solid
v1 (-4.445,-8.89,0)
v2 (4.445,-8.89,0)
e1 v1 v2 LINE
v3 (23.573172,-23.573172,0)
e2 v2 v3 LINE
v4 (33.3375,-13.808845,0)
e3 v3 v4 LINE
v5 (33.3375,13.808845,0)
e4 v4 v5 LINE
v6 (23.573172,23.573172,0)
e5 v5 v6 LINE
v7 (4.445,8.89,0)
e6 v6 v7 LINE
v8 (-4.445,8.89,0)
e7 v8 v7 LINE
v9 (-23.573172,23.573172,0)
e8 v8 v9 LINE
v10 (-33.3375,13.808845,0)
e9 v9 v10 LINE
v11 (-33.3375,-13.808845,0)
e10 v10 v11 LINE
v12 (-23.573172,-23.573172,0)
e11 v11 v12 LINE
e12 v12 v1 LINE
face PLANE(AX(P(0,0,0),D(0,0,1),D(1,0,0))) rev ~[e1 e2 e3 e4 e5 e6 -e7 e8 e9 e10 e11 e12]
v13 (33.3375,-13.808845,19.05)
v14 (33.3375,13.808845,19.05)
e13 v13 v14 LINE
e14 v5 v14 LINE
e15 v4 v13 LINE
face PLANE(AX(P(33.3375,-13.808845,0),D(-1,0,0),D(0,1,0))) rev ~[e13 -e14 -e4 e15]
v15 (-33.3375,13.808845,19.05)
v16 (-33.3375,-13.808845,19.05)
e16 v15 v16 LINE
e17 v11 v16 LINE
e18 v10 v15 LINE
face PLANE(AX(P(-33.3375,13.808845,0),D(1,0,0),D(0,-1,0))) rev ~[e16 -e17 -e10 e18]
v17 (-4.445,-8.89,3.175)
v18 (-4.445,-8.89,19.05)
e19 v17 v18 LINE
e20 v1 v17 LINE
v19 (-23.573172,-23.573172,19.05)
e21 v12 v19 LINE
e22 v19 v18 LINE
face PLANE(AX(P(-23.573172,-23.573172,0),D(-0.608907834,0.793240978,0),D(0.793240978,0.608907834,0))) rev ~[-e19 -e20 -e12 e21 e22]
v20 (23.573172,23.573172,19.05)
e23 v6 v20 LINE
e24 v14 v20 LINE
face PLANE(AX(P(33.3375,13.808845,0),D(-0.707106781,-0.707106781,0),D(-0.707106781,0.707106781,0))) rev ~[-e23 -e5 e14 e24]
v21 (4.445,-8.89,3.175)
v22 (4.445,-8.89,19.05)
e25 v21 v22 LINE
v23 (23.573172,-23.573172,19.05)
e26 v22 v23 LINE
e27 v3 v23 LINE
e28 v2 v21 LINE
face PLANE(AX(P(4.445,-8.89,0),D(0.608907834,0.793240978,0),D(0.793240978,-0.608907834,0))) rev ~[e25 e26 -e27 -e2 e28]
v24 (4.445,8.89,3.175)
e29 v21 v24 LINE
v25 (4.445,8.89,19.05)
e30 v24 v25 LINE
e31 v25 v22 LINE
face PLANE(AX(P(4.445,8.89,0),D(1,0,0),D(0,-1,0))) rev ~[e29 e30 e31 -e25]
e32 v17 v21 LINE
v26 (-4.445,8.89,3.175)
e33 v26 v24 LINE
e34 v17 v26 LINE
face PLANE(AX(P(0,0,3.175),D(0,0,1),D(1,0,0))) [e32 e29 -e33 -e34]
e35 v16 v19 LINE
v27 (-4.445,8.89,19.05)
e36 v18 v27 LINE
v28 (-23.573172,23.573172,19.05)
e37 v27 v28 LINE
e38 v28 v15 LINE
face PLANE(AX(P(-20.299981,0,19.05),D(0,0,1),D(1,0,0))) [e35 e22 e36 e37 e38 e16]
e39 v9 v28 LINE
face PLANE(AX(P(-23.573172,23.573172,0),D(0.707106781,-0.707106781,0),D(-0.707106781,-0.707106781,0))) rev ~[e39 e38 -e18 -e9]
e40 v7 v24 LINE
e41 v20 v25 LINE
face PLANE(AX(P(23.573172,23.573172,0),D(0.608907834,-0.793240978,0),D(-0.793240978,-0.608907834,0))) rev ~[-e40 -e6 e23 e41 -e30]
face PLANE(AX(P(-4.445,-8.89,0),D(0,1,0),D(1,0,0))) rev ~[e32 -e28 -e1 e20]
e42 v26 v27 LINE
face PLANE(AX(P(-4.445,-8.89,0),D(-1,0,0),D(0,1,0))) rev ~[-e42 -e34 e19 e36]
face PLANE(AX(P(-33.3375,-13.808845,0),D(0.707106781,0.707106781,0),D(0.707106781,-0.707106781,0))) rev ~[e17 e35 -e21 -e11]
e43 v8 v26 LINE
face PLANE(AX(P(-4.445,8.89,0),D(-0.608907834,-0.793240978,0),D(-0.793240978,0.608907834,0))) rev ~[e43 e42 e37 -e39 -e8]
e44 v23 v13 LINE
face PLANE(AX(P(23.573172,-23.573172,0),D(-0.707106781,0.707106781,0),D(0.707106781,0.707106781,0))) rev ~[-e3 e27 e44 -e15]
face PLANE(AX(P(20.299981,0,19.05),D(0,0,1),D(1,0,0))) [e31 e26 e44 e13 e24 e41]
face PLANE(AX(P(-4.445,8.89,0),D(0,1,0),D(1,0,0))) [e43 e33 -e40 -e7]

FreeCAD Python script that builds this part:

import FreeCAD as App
import Part
import Sketcher

V = App.Vector
Q = App.Units.Quantity

doc = App.newDocument("Part")
params = doc.addObject("Spreadsheet::Sheet", "Params")
for row, (alias, value) in enumerate([
    ("sketch1_height", "0.7 in"),
    ("pad1_length", "0.75 in"),
    ("sketch2_height", "0.7 in"),
    ("pad2_length", "0.75 in"),
    ("sketch3_height", "0.7 in"),
    ("sketch3_width", "0.35 in"),
    ("pad3_length", "0.125 in"),
], start=1):
    params.set(f"A{row}", alias)
    params.set(f"B{row}", "=" + value)
    params.setAlias(f"B{row}", alias)

body = doc.addObject("PartDesign::Body", "Body")

# Sketch on XY plane
sketch1 = body.newObject("Sketcher::SketchObject", "Sketch")
sketch1.AttachmentSupport = (doc.getObject("XY_Plane"), [""])
sketch1.MapMode = "FlatFace"
sketch1.addGeometry([
    Part.LineSegment(V(24, -24, 0), V(33, -14, 0)),  # 0
    Part.LineSegment(V(33, -14, 0), V(33, 14, 0)),  # 1
    Part.LineSegment(V(33, 14, 0), V(24, 24, 0)),  # 2
    Part.LineSegment(V(24, 24, 0), V(4, 9, 0)),  # 3
    Part.LineSegment(V(4, 9, 0), V(4, -9, 0)),  # 4
    Part.LineSegment(V(4, -9, 0), V(24, -24, 0)),  # 5
], False)
sketch1.addConstraint([
    Sketcher.Constraint("Coincident", 0, 2, 1, 1),
    Sketcher.Constraint("Coincident", 1, 2, 2, 1),
    Sketcher.Constraint("Coincident", 2, 2, 3, 1),
    Sketcher.Constraint("Coincident", 3, 2, 4, 1),
    Sketcher.Constraint("Coincident", 4, 2, 5, 1),
    Sketcher.Constraint("Coincident", 5, 2, 0, 1),
    Sketcher.Constraint("Vertical", 1),
    Sketcher.Constraint("Vertical", 4),
    Sketcher.Constraint("Symmetric", 2, 2, 5, 2, -1),
    Sketcher.Constraint("Perpendicular", 0, 2),
    Sketcher.Constraint("Equal", 0, 2),
    Sketcher.Constraint("Equal", 3, 5),
    Sketcher.Constraint("DistanceY", 4, 2, 4, 1, Q("0.7 in")),
    Sketcher.Constraint("DistanceX", -1, 1, 0, 2, Q("1.3125 in")),
    Sketcher.Constraint("DistanceX", -1, 1, 3, 2, Q("0.175 in")),
    Sketcher.Constraint("DistanceY", 1, 1, 1, 2, 27.617689),
    Sketcher.Constraint("Distance", 3, 24.113949),
])
sketch1.setExpression("Constraints[12]", "Params.sketch1_height")
pad1 = body.newObject("PartDesign::Pad", "Pad")
pad1.Profile = sketch1
pad1.setExpression("Length", "Params.pad1_length")
body2 = doc.addObject("PartDesign::Body", "Body001")

# Sketch on XY plane
sketch2 = body2.newObject("Sketcher::SketchObject", "Sketch001")
sketch2.AttachmentSupport = (doc.getObject("XY_Plane001"), [""])
sketch2.MapMode = "FlatFace"
sketch2.addGeometry([
    Part.LineSegment(V(-24, -24, 0), V(-4, -9, 0)),  # 0
    Part.LineSegment(V(-4, -9, 0), V(-4, 9, 0)),  # 1
    Part.LineSegment(V(-4, 9, 0), V(-24, 24, 0)),  # 2
    Part.LineSegment(V(-24, 24, 0), V(-33, 14, 0)),  # 3
    Part.LineSegment(V(-33, 14, 0), V(-33, -14, 0)),  # 4
    Part.LineSegment(V(-33, -14, 0), V(-24, -24, 0)),  # 5
], False)
sketch2.addConstraint([
    Sketcher.Constraint("Coincident", 0, 2, 1, 1),
    Sketcher.Constraint("Coincident", 1, 2, 2, 1),
    Sketcher.Constraint("Coincident", 2, 2, 3, 1),
    Sketcher.Constraint("Coincident", 3, 2, 4, 1),
    Sketcher.Constraint("Coincident", 4, 2, 5, 1),
    Sketcher.Constraint("Coincident", 5, 2, 0, 1),
    Sketcher.Constraint("Vertical", 1),
    Sketcher.Constraint("Vertical", 4),
    Sketcher.Constraint("Symmetric", 2, 2, 5, 2, -1),
    Sketcher.Constraint("Perpendicular", 3, 5),
    Sketcher.Constraint("Equal", 0, 2),
    Sketcher.Constraint("Equal", 3, 5),
    Sketcher.Constraint("DistanceY", 1, 1, 1, 2, Q("0.7 in")),
    Sketcher.Constraint("DistanceX", 0, 2, -1, 1, Q("0.175 in")),
    Sketcher.Constraint("DistanceX", 3, 2, -1, 1, Q("1.3125 in")),
    Sketcher.Constraint("DistanceY", 4, 2, 4, 1, 27.617689),
    Sketcher.Constraint("Distance", 0, 24.113949),
])
sketch2.setExpression("Constraints[12]", "Params.sketch2_height")
pad2 = body2.newObject("PartDesign::Pad", "Pad001")
pad2.Profile = sketch2
pad2.setExpression("Length", "Params.pad2_length")
body.AllowCompound = True
doc.recompute()

boolean = body.newObject("PartDesign::Boolean", "Boolean")
boolean.Type = "Fuse"
boolean.addObjects([body2])

# Sketch on XY plane
sketch3 = body.newObject("Sketcher::SketchObject", "Sketch002")
sketch3.AttachmentSupport = (doc.getObject("XY_Plane"), [""])
sketch3.MapMode = "FlatFace"
sketch3.addGeometry([
    Part.LineSegment(V(-4, 9, 0), V(-4, -9, 0)),
    Part.LineSegment(V(-4, -9, 0), V(4, -9, 0)),
    Part.LineSegment(V(4, -9, 0), V(4, 9, 0)),
    Part.LineSegment(V(4, 9, 0), V(-4, 9, 0)),
], False)
sketch3.addConstraint([
    Sketcher.Constraint("Coincident", 0, 2, 1, 1),
    Sketcher.Constraint("Coincident", 1, 2, 2, 1),
    Sketcher.Constraint("Coincident", 2, 2, 3, 1),
    Sketcher.Constraint("Coincident", 3, 2, 0, 1),
    Sketcher.Constraint("Vertical", 0),
    Sketcher.Constraint("Horizontal", 1),
    Sketcher.Constraint("Vertical", 2),
    Sketcher.Constraint("Horizontal", 3),
    Sketcher.Constraint("Symmetric", 0, 2, 2, 2, -1, 1),
    Sketcher.Constraint("DistanceY", 0, 2, 0, 1, Q("0.7 in")),
    Sketcher.Constraint("DistanceX", 1, 1, 1, 2, Q("0.35 in")),
])
sketch3.setExpression("Constraints[9]", "Params.sketch3_height")
sketch3.setExpression("Constraints[10]", "Params.sketch3_width")
pad3 = body.newObject("PartDesign::Pad", "Pad002")
pad3.Profile = sketch3
pad3.setExpression("Length", "Params.pad3_length")

doc.recompute()
